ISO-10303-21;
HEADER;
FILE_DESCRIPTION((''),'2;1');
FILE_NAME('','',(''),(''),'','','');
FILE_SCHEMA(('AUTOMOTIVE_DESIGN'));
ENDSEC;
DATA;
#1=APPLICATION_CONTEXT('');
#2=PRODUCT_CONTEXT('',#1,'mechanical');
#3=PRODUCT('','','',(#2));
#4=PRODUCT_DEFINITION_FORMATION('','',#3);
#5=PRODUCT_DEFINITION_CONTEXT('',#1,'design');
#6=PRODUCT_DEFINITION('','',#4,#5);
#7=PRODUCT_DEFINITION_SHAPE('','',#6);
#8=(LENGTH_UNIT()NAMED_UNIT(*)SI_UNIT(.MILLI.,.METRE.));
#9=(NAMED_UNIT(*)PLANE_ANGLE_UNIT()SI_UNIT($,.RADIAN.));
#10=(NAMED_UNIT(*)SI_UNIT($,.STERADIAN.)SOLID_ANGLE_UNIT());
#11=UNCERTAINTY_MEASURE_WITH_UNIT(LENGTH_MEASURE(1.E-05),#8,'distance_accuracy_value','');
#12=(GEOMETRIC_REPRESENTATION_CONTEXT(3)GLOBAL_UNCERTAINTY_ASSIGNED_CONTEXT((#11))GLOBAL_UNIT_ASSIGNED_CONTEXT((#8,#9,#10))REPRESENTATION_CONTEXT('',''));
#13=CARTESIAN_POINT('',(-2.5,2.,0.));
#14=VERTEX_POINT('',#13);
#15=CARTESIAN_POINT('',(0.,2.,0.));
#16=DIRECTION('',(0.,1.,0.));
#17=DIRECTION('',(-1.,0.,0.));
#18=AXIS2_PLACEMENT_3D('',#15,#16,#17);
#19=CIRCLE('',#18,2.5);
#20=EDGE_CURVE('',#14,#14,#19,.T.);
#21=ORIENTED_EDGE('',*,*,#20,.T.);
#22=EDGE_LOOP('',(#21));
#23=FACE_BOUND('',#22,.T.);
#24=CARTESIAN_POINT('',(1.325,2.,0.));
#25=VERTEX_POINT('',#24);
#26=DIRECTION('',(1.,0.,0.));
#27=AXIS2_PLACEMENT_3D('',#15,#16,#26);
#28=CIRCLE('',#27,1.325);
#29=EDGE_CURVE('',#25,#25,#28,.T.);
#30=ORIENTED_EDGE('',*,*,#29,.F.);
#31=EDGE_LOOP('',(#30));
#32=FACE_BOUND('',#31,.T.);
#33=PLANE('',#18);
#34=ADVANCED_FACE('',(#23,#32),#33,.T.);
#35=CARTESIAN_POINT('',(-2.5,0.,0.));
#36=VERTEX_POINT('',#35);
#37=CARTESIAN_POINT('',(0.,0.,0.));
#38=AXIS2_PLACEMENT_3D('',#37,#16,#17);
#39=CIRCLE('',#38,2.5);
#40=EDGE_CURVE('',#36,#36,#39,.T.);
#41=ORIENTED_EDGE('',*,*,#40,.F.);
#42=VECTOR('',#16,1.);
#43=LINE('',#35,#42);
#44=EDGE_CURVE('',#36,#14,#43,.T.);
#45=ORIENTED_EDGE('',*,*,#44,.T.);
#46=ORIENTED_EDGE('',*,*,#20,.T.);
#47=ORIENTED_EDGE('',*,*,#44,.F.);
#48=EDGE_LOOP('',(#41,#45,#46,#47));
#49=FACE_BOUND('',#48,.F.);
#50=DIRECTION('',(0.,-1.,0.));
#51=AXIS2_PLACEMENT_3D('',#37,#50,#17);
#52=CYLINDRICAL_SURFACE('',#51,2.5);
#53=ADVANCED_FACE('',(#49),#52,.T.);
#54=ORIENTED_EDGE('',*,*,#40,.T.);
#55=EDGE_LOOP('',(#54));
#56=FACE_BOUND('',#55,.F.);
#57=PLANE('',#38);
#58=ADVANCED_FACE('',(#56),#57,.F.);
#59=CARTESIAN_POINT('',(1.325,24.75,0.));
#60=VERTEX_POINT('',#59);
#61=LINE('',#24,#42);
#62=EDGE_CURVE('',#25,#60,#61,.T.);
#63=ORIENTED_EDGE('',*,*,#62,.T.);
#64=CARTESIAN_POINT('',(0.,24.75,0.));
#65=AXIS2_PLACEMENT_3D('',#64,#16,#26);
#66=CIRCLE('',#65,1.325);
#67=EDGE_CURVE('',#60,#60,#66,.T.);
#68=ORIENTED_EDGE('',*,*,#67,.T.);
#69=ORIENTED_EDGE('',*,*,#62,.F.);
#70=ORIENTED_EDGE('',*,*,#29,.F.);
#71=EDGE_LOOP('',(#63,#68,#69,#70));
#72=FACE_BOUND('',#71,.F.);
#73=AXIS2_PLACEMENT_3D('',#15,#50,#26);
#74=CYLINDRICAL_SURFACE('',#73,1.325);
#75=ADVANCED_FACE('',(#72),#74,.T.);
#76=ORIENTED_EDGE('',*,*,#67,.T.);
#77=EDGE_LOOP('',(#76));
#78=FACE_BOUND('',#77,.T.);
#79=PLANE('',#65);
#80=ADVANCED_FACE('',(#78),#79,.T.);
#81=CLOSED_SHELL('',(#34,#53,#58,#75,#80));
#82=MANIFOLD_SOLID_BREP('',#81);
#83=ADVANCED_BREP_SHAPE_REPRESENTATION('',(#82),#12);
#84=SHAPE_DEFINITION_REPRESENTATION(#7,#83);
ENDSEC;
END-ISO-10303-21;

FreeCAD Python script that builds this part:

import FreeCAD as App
import Part
import Sketcher
Q = App.Units.Quantity

doc = App.newDocument("Part")
params = doc.addObject("Spreadsheet::Sheet", "Params")
for row, (alias, value) in enumerate([
    ("sketch1_diameter", "5 mm"),
    ("pad1_length", "2 mm"),
    ("sketch2_diameter", "2.65 mm"),
    ("pad2_length", "22.75 mm"),
], start=1):
    params.set(f"A{row}", alias)
    params.set(f"B{row}", "=" + value)
    params.setAlias(f"B{row}", alias)

body = doc.addObject("PartDesign::Body", "Body")

# Sketch on XZ plane
sketch1 = body.newObject("Sketcher::SketchObject", "Sketch")
sketch1.AttachmentSupport = (doc.getObject("XZ_Plane"), [""])
sketch1.MapMode = "FlatFace"
sketch1.addGeometry(Part.Circle(App.Vector(0, 0, 0), App.Vector(0, 0, 1), 2.5), False)
sketch1.addConstraint([
    Sketcher.Constraint("Coincident", 0, 3, -1, 1),
    Sketcher.Constraint("Diameter", 0, Q("5 mm")),
])
sketch1.setExpression("Constraints[1]", "Params.sketch1_diameter")
pad1 = body.newObject("PartDesign::Pad", "Pad")
pad1.Profile = sketch1
pad1.setExpression("Length", "Params.pad1_length")
pad1.Reversed = True

# Sketch on XZ plane
sketch2 = body.newObject("Sketcher::SketchObject", "Sketch001")
sketch2.AttachmentSupport = (doc.getObject("XZ_Plane"), [""])
sketch2.MapMode = "FlatFace"
sketch2.AttachmentOffset = App.Placement(App.Vector(0, 0, -2), App.Rotation())
sketch2.addGeometry(Part.Circle(App.Vector(0, 0, 0), App.Vector(0, 0, 1), 1.325), False)
sketch2.addConstraint([
    Sketcher.Constraint("Coincident", 0, 3, -1, 1),
    Sketcher.Constraint("Diameter", 0, Q("2.65 mm")),
])
sketch2.setExpression("Constraints[1]", "Params.sketch2_diameter")
pad2 = body.newObject("PartDesign::Pad", "Pad001")
pad2.Profile = sketch2
pad2.setExpression("Length", "Params.pad2_length")
pad2.Reversed = True

doc.recompute()
